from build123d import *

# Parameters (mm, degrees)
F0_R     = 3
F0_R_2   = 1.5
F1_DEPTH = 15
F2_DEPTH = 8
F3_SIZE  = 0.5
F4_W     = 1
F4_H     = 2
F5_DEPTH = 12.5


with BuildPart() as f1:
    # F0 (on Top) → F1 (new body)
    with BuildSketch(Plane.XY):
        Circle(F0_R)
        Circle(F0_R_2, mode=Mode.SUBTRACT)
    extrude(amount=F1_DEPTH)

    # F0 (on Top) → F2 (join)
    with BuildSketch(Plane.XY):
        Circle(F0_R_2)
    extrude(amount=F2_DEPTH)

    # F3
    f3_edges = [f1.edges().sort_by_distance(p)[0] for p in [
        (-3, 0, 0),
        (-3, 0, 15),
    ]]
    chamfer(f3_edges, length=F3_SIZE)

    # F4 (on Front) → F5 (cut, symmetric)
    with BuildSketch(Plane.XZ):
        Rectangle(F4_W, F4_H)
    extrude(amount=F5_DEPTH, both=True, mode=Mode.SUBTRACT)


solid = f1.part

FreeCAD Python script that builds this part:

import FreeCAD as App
import Part
import Sketcher


def edges_at(feature, points):
    """Names of the edges that pass closest to the given points."""
    edges = feature.Shape.Edges
    near = lambda p: min(range(len(edges)), key=lambda i: edges[i].distToShape(Part.Vertex(*p))[0])
    return sorted({f"Edge{near(p) + 1}" for p in points})


def add_polygon(sketch, points):
    """Adds a closed chain of lines whose ends are joined by coincident constraints."""
    first, n = sketch.GeometryCount, len(points)
    for a, b in zip(points, points[1:] + points[:1]):
        sketch.addGeometry(Part.LineSegment(App.Vector(*a, 0), App.Vector(*b, 0)), False)
    for i in range(n):
        sketch.addConstraint(Sketcher.Constraint("Coincident", first + i, 2, first + (i + 1) % n, 1))

doc = App.newDocument("Part")
body = doc.addObject("PartDesign::Body", "Body")

sketch1 = body.newObject("Sketcher::SketchObject", "Sketch")
sketch1.AttachmentSupport = (doc.getObject("XY_Plane"), [""])
sketch1.MapMode = "FlatFace"
sketch1.addGeometry([
    Part.Circle(App.Vector(0, 0, 0), App.Vector(0, 0, 1), 3),
    Part.Circle(App.Vector(0, 0, 0), App.Vector(0, 0, 1), 1.5),
], False)
sketch1.addConstraint([
    Sketcher.Constraint("Coincident", 0, 3, -1, 1),
    Sketcher.Constraint("Coincident", 1, 3, -1, 1),
    Sketcher.Constraint("Diameter", 0, 6.0),
    Sketcher.Constraint("Diameter", 1, 3.0),
])
pad1 = body.newObject("PartDesign::Pad", "Pad")
pad1.Profile = sketch1
pad1.Length = 15

sketch2 = body.newObject("Sketcher::SketchObject", "Sketch001")
sketch2.AttachmentSupport = (doc.getObject("XY_Plane"), [""])
sketch2.MapMode = "FlatFace"
sketch2.addGeometry(Part.Circle(App.Vector(0, 0, 0), App.Vector(0, 0, 1), 1.5), False)
sketch2.addConstraint([
    Sketcher.Constraint("Coincident", 0, 3, -1, 1),
    Sketcher.Constraint("Diameter", 0, 3.0),
])
pad2 = body.newObject("PartDesign::Pad", "Pad001")
pad2.Profile = sketch2
pad2.Length = 8
doc.recompute()

chamfer = body.newObject("PartDesign::Chamfer", "Chamfer")
chamfer.Base = (pad2, edges_at(pad2, [(-3, 0, 0), (-3, 0, 15)]))
chamfer.Size = 0.5

sketch3 = body.newObject("Sketcher::SketchObject", "Sketch002")
sketch3.AttachmentSupport = (doc.getObject("XZ_Plane"), [""])
sketch3.MapMode = "FlatFace"
add_polygon(sketch3, [(-0.5, 1), (-0.5, -1), (0.5, -1), (0.5, 1)])
sketch3.addConstraint([
    Sketcher.Constraint("Vertical", 0),
    Sketcher.Constraint("Horizontal", 1),
    Sketcher.Constraint("Vertical", 2),
    Sketcher.Constraint("Horizontal", 3),
    Sketcher.Constraint("Symmetric", 0, 2, 2, 2, -1, 1),
    Sketcher.Constraint("DistanceX", 1, 1, 1, 2, 1.0),
    Sketcher.Constraint("DistanceY", 0, 2, 0, 1, 2.0),
])
pocket1 = body.newObject("PartDesign::Pocket", "Pocket")
pocket1.Profile = sketch3
pocket1.Length = 25
pocket1.Midplane = True

doc.recompute()
